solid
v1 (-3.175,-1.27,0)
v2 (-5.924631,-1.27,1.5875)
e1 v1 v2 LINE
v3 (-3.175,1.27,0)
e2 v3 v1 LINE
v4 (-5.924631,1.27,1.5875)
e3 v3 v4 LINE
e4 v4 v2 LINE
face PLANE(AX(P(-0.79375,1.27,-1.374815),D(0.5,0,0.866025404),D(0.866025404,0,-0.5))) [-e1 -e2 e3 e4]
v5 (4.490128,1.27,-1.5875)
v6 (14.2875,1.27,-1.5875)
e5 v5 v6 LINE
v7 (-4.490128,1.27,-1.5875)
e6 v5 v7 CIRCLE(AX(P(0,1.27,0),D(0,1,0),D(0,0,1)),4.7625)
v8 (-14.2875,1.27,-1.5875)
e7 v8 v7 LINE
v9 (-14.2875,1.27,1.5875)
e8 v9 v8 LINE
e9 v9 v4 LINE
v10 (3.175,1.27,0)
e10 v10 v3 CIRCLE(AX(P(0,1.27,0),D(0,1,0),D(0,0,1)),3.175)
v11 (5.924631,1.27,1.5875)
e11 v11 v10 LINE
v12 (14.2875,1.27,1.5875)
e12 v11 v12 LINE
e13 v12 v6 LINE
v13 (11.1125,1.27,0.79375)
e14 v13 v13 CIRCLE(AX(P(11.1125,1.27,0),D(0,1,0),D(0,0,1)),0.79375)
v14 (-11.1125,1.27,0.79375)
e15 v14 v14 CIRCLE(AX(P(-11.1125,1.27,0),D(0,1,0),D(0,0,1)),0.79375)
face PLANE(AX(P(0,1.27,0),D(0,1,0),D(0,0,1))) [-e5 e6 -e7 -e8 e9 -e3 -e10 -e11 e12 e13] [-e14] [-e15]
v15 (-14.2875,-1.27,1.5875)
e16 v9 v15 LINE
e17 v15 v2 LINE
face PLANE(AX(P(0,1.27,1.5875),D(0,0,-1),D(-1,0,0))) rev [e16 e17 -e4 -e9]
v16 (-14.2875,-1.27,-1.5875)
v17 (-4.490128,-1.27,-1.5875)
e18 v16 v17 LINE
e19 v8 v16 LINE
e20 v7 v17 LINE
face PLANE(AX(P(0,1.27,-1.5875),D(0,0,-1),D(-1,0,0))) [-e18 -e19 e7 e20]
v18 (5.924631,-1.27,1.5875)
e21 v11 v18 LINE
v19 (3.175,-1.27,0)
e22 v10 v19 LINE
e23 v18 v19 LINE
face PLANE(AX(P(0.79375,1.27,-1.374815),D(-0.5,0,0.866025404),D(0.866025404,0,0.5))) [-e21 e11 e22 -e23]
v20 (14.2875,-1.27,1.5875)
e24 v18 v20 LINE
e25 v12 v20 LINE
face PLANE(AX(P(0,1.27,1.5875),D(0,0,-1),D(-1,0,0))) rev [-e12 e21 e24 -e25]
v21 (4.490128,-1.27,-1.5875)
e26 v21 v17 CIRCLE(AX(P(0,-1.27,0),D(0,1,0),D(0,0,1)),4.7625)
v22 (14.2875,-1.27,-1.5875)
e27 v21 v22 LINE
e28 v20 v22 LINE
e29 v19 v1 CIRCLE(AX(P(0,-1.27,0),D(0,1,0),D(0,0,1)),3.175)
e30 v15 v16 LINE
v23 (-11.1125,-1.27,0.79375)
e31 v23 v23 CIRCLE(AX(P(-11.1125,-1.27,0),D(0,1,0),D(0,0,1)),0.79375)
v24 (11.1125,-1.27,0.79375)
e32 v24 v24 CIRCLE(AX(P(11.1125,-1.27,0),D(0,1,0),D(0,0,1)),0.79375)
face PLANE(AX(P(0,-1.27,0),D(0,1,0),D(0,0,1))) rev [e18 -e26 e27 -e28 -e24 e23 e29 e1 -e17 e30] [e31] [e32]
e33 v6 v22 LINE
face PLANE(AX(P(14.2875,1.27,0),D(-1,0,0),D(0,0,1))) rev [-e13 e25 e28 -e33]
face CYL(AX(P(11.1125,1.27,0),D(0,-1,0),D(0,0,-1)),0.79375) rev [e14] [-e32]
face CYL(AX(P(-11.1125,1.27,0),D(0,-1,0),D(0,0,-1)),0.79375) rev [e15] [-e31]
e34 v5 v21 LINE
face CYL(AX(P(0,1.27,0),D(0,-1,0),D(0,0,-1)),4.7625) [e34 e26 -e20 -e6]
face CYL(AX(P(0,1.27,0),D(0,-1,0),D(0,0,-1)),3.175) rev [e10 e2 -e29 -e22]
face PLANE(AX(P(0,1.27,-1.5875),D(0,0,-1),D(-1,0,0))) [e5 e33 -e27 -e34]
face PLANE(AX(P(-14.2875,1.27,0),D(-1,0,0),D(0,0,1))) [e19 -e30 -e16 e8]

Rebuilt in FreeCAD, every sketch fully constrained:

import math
import FreeCAD as App
import Part
import Sketcher

V = App.Vector
Q = App.Units.Quantity

doc = App.newDocument("Part")
params = doc.addObject("Spreadsheet::Sheet", "Params")
for row, (alias, value) in enumerate([
    ("sketch1_diameter", "0.0625 in"),
    ("sketch1_radius", "0.125 in"),
    ("sketch1_radius2", "0.1875 in"),
    ("sketch1_height", "0.125 in"),
    ("pad1_length", "0.1 in"),
], start=1):
    params.set(f"A{row}", alias)
    params.set(f"B{row}", "=" + value)
    params.setAlias(f"B{row}", alias)

body = doc.addObject("PartDesign::Body", "Body")

sketch1 = body.newObject("Sketcher::SketchObject", "Sketch")
sketch1.AttachmentSupport = (doc.getObject("XZ_Plane"), [""])
sketch1.MapMode = "FlatFace"
sketch1.addGeometry(Part.LineSegment(V(-5.9, 1.6, 0), V(-4.7, 0.9, 0)), False)
sketch1.addGeometry(Part.LineSegment(V(-4.7, 0.9, 0), V(-3.2, 0, 0)), False)
sketch1.addGeometry(Part.ArcOfCircle(Part.Circle(V(0, 0, 0), V(0, 0, 1), 3.2), math.radians(-180), math.radians(-150)), False)
sketch1.addGeometry(Part.ArcOfCircle(Part.Circle(V(0, 0, 0), V(0, 0, 1), 3.2), math.radians(-150), math.radians(-30)), False)
sketch1.addGeometry(Part.ArcOfCircle(Part.Circle(V(0, 0, 0), V(0, 0, 1), 3.2), math.radians(-30), math.radians(0)), False)
sketch1.addGeometry(Part.LineSegment(V(3.2, 0, 0), V(4.7, 0.9, 0)), False)
sketch1.addGeometry(Part.LineSegment(V(4.7, 0.9, 0), V(5.9, 1.6, 0)), False)
sketch1.addGeometry(Part.LineSegment(V(5.9, 1.6, 0), V(14.3, 1.6, 0)), False)
sketch1.addGeometry(Part.LineSegment(V(14.3, 1.6, 0), V(14.3, -1.6, 0)), False)
sketch1.addGeometry(Part.LineSegment(V(14.3, -1.6, 0), V(4.5, -1.6, 0)), False)
sketch1.addGeometry(Part.ArcOfCircle(Part.Circle(V(0, 0, 0), V(0, 0, 1), 4.8), math.radians(-161), math.radians(-19)), False)
sketch1.addGeometry(Part.LineSegment(V(-4.5, -1.6, 0), V(-14.3, -1.6, 0)), False)
sketch1.addGeometry(Part.LineSegment(V(-14.3, -1.6, 0), V(-14.3, 1.6, 0)), False)
sketch1.addGeometry(Part.LineSegment(V(-14.3, 1.6, 0), V(-5.9, 1.6, 0)), False)
sketch1.addGeometry(Part.Circle(V(-11.1, 0, 0), V(0, 0, 1), 0.8), False)
sketch1.addGeometry(Part.Circle(V(11.1, 0, 0), V(0, 0, 1), 0.8), False)
sketch1.addConstraint(Sketcher.Constraint("Coincident", 0, 2, 1, 1))
sketch1.addConstraint(Sketcher.Constraint("Coincident", 1, 2, 2, 1))
sketch1.addConstraint(Sketcher.Constraint("Tangent", 2, 2, 3, 1))
sketch1.addConstraint(Sketcher.Constraint("Tangent", 3, 2, 4, 1))
sketch1.addConstraint(Sketcher.Constraint("Coincident", 4, 2, 5, 1))
sketch1.addConstraint(Sketcher.Constraint("Coincident", 5, 2, 6, 1))
sketch1.addConstraint(Sketcher.Constraint("Coincident", 6, 2, 7, 1))
sketch1.addConstraint(Sketcher.Constraint("Coincident", 7, 2, 8, 1))
sketch1.addConstraint(Sketcher.Constraint("Coincident", 8, 2, 9, 1))
sketch1.addConstraint(Sketcher.Constraint("Coincident", 9, 2, 10, 2))
sketch1.addConstraint(Sketcher.Constraint("Coincident", 10, 1, 11, 1))
sketch1.addConstraint(Sketcher.Constraint("Coincident", 11, 2, 12, 1))
sketch1.addConstraint(Sketcher.Constraint("Coincident", 12, 2, 13, 1))
sketch1.addConstraint(Sketcher.Constraint("Coincident", 13, 2, 0, 1))
sketch1.addConstraint(Sketcher.Constraint("Horizontal", 7))
sketch1.addConstraint(Sketcher.Constraint("Vertical", 8))
sketch1.addConstraint(Sketcher.Constraint("Horizontal", 9))
sketch1.addConstraint(Sketcher.Constraint("Horizontal", 11))
sketch1.addConstraint(Sketcher.Constraint("Vertical", 12))
sketch1.addConstraint(Sketcher.Constraint("Horizontal", 13))
sketch1.addConstraint(Sketcher.Constraint("Coincident", 2, 3, -1, 1))
sketch1.addConstraint(Sketcher.Constraint("Coincident", 4, 3, -1, 1))
sketch1.addConstraint(Sketcher.Constraint("Coincident", 10, 3, -1, 1))
sketch1.addConstraint(Sketcher.Constraint("Equal", 14, 15))
sketch1.addConstraint(Sketcher.Constraint("Symmetric", 14, 3, 15, 3, -1, 1))
sketch1.addConstraint(Sketcher.Constraint("Symmetric", 7, 2, 11, 2, -1, 1))
sketch1.addConstraint(Sketcher.Constraint("Symmetric", 0, 2, 5, 2, -2))
sketch1.addConstraint(Sketcher.Constraint("Symmetric", 6, 2, 13, 2, -2))
sketch1.addConstraint(Sketcher.Constraint("PointOnObject", 14, 3, -1))
sketch1.addConstraint(Sketcher.Constraint("PointOnObject", 1, 2, -1))
sketch1.addConstraint(Sketcher.Constraint("PointOnObject", 4, 2, -1))
sketch1.addConstraint(Sketcher.Constraint("Parallel", 0, 1))
sketch1.addConstraint(Sketcher.Constraint("Horizontal", 2, 2, 3, 2))
sketch1.addConstraint(Sketcher.Constraint("Horizontal", 3, 2, 8, 2))
sketch1.addConstraint(Sketcher.Constraint("Horizontal", 9, 2, 10, 1))
sketch1.addConstraint(Sketcher.Constraint("Diameter", 14, Q("0.0625 in")))
sketch1.addConstraint(Sketcher.Constraint("Angle", 0, Q("-30 deg")))
sketch1.addConstraint(Sketcher.Constraint("Radius", 2, Q("0.125 in")))
sketch1.addConstraint(Sketcher.Constraint("Radius", 10, Q("0.1875 in")))
sketch1.addConstraint(Sketcher.Constraint("DistanceY", 8, 2, 8, 1, Q("0.125 in")))
sketch1.addConstraint(Sketcher.Constraint("DistanceX", 14, 3, -1, 1, Q("0.4375 in")))
sketch1.addConstraint(Sketcher.Constraint("DistanceX", -1, 1, 7, 2, Q("0.5625 in")))
sketch1.addConstraint(Sketcher.Constraint("DistanceY", -1, 1, 0, 2, Q("0.870249 mm")))
sketch1.setExpression("Constraints[35]", "Params.sketch1_diameter")
sketch1.setExpression("Constraints[37]", "Params.sketch1_radius")
sketch1.setExpression("Constraints[38]", "Params.sketch1_radius2")
sketch1.setExpression("Constraints[39]", "Params.sketch1_height")
pad1 = body.newObject("PartDesign::Pad", "Pad")
pad1.Profile = sketch1
pad1.setExpression("Length", "Params.pad1_length")
pad1.Midplane = True

doc.recompute()
